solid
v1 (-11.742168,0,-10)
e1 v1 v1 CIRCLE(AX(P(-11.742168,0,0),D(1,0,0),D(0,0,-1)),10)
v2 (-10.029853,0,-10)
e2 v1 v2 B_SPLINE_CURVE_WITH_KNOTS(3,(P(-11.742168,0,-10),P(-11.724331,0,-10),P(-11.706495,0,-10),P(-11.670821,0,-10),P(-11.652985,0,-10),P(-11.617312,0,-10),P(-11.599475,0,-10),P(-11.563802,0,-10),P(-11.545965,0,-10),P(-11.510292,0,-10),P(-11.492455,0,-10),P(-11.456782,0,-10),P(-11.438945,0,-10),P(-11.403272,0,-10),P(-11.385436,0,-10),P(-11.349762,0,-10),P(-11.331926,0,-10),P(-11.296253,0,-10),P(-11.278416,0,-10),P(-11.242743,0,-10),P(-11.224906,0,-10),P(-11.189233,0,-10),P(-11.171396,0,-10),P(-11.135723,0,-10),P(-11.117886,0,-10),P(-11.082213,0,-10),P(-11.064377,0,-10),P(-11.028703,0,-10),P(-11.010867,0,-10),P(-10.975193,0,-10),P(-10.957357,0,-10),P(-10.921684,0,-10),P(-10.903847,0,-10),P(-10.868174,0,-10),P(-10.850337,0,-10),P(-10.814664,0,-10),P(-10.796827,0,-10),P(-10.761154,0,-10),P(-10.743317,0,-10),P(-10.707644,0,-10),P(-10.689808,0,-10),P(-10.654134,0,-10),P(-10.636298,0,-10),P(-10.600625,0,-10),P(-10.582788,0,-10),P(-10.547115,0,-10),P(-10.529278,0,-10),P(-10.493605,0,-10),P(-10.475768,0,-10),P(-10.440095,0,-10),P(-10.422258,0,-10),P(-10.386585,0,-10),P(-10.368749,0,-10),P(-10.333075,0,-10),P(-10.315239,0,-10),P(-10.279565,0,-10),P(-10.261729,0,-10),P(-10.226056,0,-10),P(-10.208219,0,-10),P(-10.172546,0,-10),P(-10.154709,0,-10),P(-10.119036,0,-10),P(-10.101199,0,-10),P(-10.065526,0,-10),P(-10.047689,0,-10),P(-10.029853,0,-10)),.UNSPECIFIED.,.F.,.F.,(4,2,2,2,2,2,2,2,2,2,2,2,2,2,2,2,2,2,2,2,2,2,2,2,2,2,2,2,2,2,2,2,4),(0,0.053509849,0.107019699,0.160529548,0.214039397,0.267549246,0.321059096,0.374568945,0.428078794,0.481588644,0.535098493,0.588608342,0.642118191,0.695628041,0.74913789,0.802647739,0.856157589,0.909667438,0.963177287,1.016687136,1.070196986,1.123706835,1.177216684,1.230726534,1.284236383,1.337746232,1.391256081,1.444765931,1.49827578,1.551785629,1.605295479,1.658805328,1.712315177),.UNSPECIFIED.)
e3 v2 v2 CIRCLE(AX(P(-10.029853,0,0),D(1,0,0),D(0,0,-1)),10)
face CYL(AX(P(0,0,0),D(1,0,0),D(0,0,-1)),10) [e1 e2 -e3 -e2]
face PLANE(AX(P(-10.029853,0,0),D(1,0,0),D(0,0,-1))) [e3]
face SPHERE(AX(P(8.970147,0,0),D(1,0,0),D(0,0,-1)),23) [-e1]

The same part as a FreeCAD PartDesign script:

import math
import FreeCAD as App
import Part
import Sketcher
from FreeCAD import Vector
Q = App.Units.Quantity

doc = App.newDocument("Part")
params = doc.addObject("Spreadsheet::Sheet", "Params")
for row, (alias, value) in enumerate([
    ("sketch1_radius", "23 mm"),
    ("sketch1_width", "4 mm"),
    ("sketch1_height", "10 mm"),
    ("revolution_angle", "360 deg"),
], start=1):
    params.set(f"A{row}", alias)
    params.set(f"B{row}", "=" + value)
    params.setAlias(f"B{row}", alias)

body = doc.addObject("PartDesign::Body", "Body")

# Sketch on XZ plane
sketch1 = body.newObject("Sketcher::SketchObject", "Sketch")
sketch1.AttachmentSupport = (doc.getObject("XZ_Plane"), [""])
sketch1.MapMode = "FlatFace"
sketch1.addGeometry([
    Part.LineSegment(Vector(-10, 0, 0), Vector(-10, -10, 0)),
    Part.LineSegment(Vector(-10, -10, 0), Vector(-11.7, -10, 0)),
    Part.ArcOfCircle(Part.Circle(Vector(9, 0, 0), Vector(0, 0, 1), 23), math.radians(180), math.radians(206)),
    Part.LineSegment(Vector(-14, 0, 0), Vector(-10, 0, 0)),
], False)
sketch1.addConstraint([
    Sketcher.Constraint("Coincident", 0, 2, 1, 1),
    Sketcher.Constraint("Coincident", 1, 2, 2, 2),
    Sketcher.Constraint("Coincident", 2, 1, 3, 1),
    Sketcher.Constraint("Coincident", 3, 2, 0, 1),
    Sketcher.Constraint("Vertical", 0),
    Sketcher.Constraint("Horizontal", 1),
    Sketcher.Constraint("Horizontal", 3),
    Sketcher.Constraint("PointOnObject", 2, 3, -1),
    Sketcher.Constraint("PointOnObject", 2, 1, -1),
    Sketcher.Constraint("Radius", 2, Q("23 mm")),
    Sketcher.Constraint("DistanceX", 3, 1, 3, 2, Q("4 mm")),
    Sketcher.Constraint("DistanceY", 0, 2, 0, 1, Q("10 mm")),
    Sketcher.Constraint("DistanceX", -1, 1, 2, 3, Q("8.970147 mm")),
])
sketch1.setExpression("Constraints[9]", "Params.sketch1_radius")
sketch1.setExpression("Constraints[10]", "Params.sketch1_width")
sketch1.setExpression("Constraints[11]", "Params.sketch1_height")
revolution = body.newObject("PartDesign::Revolution", "Revolution")
revolution.Profile = sketch1
revolution.ReferenceAxis = (sketch1, ["H_Axis"])
revolution.setExpression("Angle", "Params.revolution_angle")

doc.recompute()
